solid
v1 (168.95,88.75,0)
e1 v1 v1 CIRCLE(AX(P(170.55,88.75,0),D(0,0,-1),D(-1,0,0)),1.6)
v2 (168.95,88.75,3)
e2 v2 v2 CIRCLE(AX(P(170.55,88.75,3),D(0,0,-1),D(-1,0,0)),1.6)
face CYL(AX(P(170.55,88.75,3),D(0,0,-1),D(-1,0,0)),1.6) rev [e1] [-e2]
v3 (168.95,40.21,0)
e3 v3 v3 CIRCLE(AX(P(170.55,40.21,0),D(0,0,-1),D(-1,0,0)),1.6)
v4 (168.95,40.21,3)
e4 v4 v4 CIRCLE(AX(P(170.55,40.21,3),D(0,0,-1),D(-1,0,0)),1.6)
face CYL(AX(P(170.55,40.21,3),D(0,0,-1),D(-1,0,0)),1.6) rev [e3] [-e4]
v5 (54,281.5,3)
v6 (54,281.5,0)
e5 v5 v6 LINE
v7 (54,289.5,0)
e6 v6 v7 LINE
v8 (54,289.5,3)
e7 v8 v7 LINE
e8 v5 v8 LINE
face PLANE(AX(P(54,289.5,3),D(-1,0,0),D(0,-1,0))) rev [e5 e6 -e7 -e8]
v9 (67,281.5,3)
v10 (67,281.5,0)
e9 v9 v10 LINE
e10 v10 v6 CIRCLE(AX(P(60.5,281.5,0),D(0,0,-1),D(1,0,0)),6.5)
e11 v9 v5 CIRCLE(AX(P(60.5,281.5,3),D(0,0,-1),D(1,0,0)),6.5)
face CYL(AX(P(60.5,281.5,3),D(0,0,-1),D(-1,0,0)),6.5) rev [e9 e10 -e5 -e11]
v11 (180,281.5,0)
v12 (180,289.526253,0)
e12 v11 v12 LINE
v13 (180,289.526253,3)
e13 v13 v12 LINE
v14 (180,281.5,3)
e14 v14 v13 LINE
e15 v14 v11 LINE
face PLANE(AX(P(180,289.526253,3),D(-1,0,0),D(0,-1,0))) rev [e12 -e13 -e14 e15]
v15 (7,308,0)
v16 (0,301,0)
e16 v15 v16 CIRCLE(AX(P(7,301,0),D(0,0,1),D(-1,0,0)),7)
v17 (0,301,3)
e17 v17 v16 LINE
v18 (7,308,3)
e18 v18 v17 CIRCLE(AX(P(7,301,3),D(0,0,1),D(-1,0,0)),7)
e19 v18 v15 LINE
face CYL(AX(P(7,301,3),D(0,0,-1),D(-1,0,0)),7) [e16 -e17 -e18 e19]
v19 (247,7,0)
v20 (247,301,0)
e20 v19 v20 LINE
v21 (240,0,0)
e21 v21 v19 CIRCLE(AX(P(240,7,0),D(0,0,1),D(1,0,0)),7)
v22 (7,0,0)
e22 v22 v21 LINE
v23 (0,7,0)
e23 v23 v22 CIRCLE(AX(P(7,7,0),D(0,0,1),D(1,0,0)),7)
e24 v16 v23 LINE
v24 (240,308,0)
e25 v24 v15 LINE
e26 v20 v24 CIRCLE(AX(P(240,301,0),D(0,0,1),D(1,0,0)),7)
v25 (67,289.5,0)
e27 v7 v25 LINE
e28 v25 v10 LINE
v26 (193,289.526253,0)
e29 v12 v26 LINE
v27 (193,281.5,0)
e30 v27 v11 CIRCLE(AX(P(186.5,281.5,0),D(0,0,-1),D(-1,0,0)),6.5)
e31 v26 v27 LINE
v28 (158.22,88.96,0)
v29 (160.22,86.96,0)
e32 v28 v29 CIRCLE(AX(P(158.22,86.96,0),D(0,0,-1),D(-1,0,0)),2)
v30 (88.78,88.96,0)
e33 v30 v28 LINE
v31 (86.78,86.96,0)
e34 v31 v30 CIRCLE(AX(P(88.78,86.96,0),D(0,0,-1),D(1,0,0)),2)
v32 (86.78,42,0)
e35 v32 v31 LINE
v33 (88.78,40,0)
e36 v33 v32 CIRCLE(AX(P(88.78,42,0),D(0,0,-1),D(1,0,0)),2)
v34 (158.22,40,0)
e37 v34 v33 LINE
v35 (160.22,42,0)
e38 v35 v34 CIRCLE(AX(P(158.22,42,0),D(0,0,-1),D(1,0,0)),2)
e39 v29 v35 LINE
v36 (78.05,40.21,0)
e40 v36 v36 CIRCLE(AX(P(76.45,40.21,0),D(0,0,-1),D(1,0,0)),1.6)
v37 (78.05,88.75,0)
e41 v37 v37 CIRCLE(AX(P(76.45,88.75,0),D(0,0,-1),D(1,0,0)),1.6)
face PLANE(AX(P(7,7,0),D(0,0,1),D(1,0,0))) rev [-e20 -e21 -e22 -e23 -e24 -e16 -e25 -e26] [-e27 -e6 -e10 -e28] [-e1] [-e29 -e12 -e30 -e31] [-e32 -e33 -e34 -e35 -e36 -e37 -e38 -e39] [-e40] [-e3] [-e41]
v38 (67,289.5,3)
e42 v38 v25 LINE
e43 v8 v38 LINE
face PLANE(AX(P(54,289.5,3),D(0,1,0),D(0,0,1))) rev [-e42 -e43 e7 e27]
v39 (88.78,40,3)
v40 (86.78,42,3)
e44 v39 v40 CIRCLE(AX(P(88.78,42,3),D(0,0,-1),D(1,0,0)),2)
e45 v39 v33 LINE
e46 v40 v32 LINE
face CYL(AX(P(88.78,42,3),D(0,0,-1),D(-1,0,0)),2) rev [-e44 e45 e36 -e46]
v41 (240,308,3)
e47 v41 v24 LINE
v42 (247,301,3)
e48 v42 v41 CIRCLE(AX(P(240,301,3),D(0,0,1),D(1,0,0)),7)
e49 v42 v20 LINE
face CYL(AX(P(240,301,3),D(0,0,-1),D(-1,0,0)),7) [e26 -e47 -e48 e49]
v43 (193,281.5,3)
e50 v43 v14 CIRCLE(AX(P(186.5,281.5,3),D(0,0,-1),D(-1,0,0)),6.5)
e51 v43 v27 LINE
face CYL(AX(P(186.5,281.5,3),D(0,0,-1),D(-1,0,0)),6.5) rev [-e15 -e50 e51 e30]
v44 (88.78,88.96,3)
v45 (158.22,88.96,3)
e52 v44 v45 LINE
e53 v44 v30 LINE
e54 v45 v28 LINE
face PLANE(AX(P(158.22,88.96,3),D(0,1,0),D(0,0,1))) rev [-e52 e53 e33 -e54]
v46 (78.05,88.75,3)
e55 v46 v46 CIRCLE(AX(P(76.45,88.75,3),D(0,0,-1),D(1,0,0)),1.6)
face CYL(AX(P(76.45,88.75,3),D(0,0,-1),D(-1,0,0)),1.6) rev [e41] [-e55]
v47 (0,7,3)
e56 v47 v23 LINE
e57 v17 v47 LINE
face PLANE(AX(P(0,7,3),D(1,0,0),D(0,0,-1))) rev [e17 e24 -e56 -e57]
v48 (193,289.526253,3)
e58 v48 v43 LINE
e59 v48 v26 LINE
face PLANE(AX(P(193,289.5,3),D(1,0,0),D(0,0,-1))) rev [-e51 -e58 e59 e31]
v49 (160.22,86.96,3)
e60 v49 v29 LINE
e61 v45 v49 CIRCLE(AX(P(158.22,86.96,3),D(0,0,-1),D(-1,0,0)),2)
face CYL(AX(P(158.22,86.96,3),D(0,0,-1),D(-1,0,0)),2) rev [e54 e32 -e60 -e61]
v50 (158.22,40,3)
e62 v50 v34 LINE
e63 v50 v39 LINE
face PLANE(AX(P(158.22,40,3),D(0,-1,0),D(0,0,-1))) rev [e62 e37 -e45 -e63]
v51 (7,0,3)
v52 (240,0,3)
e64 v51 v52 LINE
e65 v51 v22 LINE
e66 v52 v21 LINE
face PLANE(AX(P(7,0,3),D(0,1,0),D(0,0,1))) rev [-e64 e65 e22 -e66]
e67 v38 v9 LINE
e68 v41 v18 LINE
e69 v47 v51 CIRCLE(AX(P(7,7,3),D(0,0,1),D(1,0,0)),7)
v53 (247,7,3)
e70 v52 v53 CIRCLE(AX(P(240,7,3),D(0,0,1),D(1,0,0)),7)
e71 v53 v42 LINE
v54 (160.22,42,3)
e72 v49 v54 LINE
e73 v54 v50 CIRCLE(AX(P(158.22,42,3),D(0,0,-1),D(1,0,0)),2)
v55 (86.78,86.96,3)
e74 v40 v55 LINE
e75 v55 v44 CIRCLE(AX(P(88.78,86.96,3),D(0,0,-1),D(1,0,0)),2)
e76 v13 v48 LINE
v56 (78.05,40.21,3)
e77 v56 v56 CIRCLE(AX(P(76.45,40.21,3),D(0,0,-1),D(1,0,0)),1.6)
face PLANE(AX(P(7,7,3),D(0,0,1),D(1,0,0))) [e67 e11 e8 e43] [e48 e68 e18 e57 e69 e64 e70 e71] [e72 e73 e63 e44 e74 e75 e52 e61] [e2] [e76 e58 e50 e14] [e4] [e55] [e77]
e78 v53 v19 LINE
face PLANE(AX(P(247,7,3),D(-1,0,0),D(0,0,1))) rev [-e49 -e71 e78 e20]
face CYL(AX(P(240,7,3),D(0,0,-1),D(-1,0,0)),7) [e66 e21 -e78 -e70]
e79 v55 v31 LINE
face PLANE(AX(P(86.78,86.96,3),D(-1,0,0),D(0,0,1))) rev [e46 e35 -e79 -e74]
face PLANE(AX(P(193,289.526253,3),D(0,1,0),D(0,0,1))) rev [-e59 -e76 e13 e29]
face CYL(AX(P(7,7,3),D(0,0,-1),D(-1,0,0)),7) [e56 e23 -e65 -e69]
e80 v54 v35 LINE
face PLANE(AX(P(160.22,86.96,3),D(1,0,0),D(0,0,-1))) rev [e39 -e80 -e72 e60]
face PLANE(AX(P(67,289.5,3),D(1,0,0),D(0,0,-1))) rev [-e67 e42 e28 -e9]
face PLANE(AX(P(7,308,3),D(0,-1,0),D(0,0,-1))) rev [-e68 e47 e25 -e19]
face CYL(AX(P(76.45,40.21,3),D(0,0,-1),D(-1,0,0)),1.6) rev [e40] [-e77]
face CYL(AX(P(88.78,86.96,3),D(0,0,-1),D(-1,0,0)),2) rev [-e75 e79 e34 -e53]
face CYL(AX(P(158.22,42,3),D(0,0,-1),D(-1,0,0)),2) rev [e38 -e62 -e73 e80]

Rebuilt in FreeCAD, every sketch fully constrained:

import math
import FreeCAD as App
import Part
import Sketcher

V = App.Vector

doc = App.newDocument("Part")
params = doc.addObject("Spreadsheet::Sheet", "Params")
for row, (alias, value) in enumerate([
    ("sketch1_radius", "7 mm"),
    ("sketch1_width", "233 mm"),
    ("sketch1_height", "294 mm"),
    ("pad1_length", "3 mm"),
    ("sketch2_radius", "6.5 mm"),
    ("sketch2_height", "8 mm"),
    ("sketch3_radius", "2 mm"),
    ("sketch3_diameter", "3.2 mm"),
    ("sketch3_width", "69.44 mm"),
    ("sketch3_height", "44.96 mm"),
], start=1):
    params.set(f"A{row}", alias)
    params.set(f"B{row}", "=" + value)
    params.setAlias(f"B{row}", alias)

body = doc.addObject("PartDesign::Body", "Body")

sketch1 = doc.addObject("Sketcher::SketchObject", "Sketch")
body.addObject(sketch1)
sketch1.AttachmentSupport = (doc.XY_Plane, [""])
sketch1.MapMode = "FlatFace"
sketch1.addGeometry(Part.LineSegment(V(7, 0, 0), V(240, 0, 0)), False)
sketch1.addGeometry(Part.ArcOfCircle(Part.Circle(V(240, 7, 0), V(0, 0, 1), 7), math.radians(-90), math.radians(0)), False)
sketch1.addGeometry(Part.LineSegment(V(247, 7, 0), V(247, 301, 0)), False)
sketch1.addGeometry(Part.ArcOfCircle(Part.Circle(V(240, 301, 0), V(0, 0, 1), 7), math.radians(0), math.radians(90)), False)
sketch1.addGeometry(Part.LineSegment(V(240, 308, 0), V(7, 308, 0)), False)
sketch1.addGeometry(Part.ArcOfCircle(Part.Circle(V(7, 301, 0), V(0, 0, 1), 7), math.radians(90), math.radians(180)), False)
sketch1.addGeometry(Part.LineSegment(V(0, 301, 0), V(0, 7, 0)), False)
sketch1.addGeometry(Part.ArcOfCircle(Part.Circle(V(7, 7, 0), V(0, 0, 1), 7), math.radians(-180), math.radians(-90)), False)
sketch1.addConstraint(Sketcher.Constraint("Tangent", 0, 2, 1, 1))
sketch1.addConstraint(Sketcher.Constraint("Tangent", 1, 2, 2, 1))
sketch1.addConstraint(Sketcher.Constraint("Tangent", 2, 2, 3, 1))
sketch1.addConstraint(Sketcher.Constraint("Tangent", 3, 2, 4, 1))
sketch1.addConstraint(Sketcher.Constraint("Tangent", 4, 2, 5, 1))
sketch1.addConstraint(Sketcher.Constraint("Tangent", 5, 2, 6, 1))
sketch1.addConstraint(Sketcher.Constraint("Tangent", 6, 2, 7, 1))
sketch1.addConstraint(Sketcher.Constraint("Tangent", 7, 2, 0, 1))
sketch1.addConstraint(Sketcher.Constraint("Horizontal", 0))
sketch1.addConstraint(Sketcher.Constraint("Vertical", 2))
sketch1.addConstraint(Sketcher.Constraint("Horizontal", 4))
sketch1.addConstraint(Sketcher.Constraint("Vertical", 6))
sketch1.addConstraint(Sketcher.Constraint("Equal", 1, 3))
sketch1.addConstraint(Sketcher.Constraint("Equal", 3, 5))
sketch1.addConstraint(Sketcher.Constraint("Equal", 5, 7))
sketch1.addConstraint(Sketcher.Constraint("PointOnObject", 0, 2, -1))
sketch1.addConstraint(Sketcher.Constraint("PointOnObject", 5, 2, -2))
sketch1.addConstraint(Sketcher.Constraint("Radius", 1, 7.0))
sketch1.addConstraint(Sketcher.Constraint("DistanceX", 0, 1, 0, 2, 233.0))
sketch1.addConstraint(Sketcher.Constraint("DistanceY", 2, 1, 2, 2, 294.0))
sketch1.setExpression("Constraints[17]", "Params.sketch1_radius")
sketch1.setExpression("Constraints[18]", "Params.sketch1_width")
sketch1.setExpression("Constraints[19]", "Params.sketch1_height")
pad1 = doc.addObject("PartDesign::Pad", "Pad")
body.addObject(pad1)
pad1.Profile = sketch1
pad1.setExpression("Length", "Params.pad1_length")

sketch2 = doc.addObject("Sketcher::SketchObject", "Sketch001")
body.addObject(sketch2)
sketch2.AttachmentSupport = (doc.XY_Plane, [""])
sketch2.MapMode = "FlatFace"
sketch2.addGeometry(Part.LineSegment(V(54, 290, 0), V(67, 290, 0)), False)
sketch2.addGeometry(Part.LineSegment(V(67, 290, 0), V(67, 282, 0)), False)
sketch2.addGeometry(Part.ArcOfCircle(Part.Circle(V(60, 282, 0), V(0, 0, 1), 6), math.radians(180), math.radians(360)), False)
sketch2.addGeometry(Part.LineSegment(V(54, 282, 0), V(54, 290, 0)), False)
sketch2.addGeometry(Part.ArcOfCircle(Part.Circle(V(186, 282, 0), V(0, 0, 1), 6), math.radians(180), math.radians(360)), False)
sketch2.addGeometry(Part.LineSegment(V(180, 282, 0), V(180, 290, 0)), False)
sketch2.addGeometry(Part.LineSegment(V(180, 290, 0), V(193, 290, 0)), False)
sketch2.addGeometry(Part.LineSegment(V(193, 290, 0), V(193, 282, 0)), False)
sketch2.addConstraint(Sketcher.Constraint("Coincident", 0, 2, 1, 1))
sketch2.addConstraint(Sketcher.Constraint("Tangent", 1, 2, 2, 2))
sketch2.addConstraint(Sketcher.Constraint("Tangent", 2, 1, 3, 1))
sketch2.addConstraint(Sketcher.Constraint("Coincident", 3, 2, 0, 1))
sketch2.addConstraint(Sketcher.Constraint("Tangent", 4, 1, 5, 1))
sketch2.addConstraint(Sketcher.Constraint("Coincident", 5, 2, 6, 1))
sketch2.addConstraint(Sketcher.Constraint("Coincident", 6, 2, 7, 1))
sketch2.addConstraint(Sketcher.Constraint("Tangent", 7, 2, 4, 2))
sketch2.addConstraint(Sketcher.Constraint("Horizontal", 0))
sketch2.addConstraint(Sketcher.Constraint("Vertical", 1))
sketch2.addConstraint(Sketcher.Constraint("Vertical", 3))
sketch2.addConstraint(Sketcher.Constraint("Vertical", 5))
sketch2.addConstraint(Sketcher.Constraint("Horizontal", 6))
sketch2.addConstraint(Sketcher.Constraint("Vertical", 7))
sketch2.addConstraint(Sketcher.Constraint("Equal", 2, 4))
sketch2.addConstraint(Sketcher.Constraint("Horizontal", 2, 3, 4, 3))
sketch2.addConstraint(Sketcher.Constraint("Radius", 2, 6.5))
sketch2.addConstraint(Sketcher.Constraint("DistanceY", 1, 2, 1, 1, 8.0))
sketch2.addConstraint(Sketcher.Constraint("DistanceX", -1, 1, 0, 2, 67.0))
sketch2.addConstraint(Sketcher.Constraint("DistanceX", -1, 1, 4, 1, 180.0))
sketch2.addConstraint(Sketcher.Constraint("DistanceY", -1, 1, 2, 3, 281.5))
sketch2.addConstraint(Sketcher.Constraint("DistanceY", 5, 1, 5, 2, 8.026253))
sketch2.setExpression("Constraints[16]", "Params.sketch2_radius")
sketch2.setExpression("Constraints[17]", "Params.sketch2_height")
pocket1 = doc.addObject("PartDesign::Pocket", "Pocket")
body.addObject(pocket1)
pocket1.Profile = sketch2
pocket1.Type = "ThroughAll"
pocket1.Reversed = True

sketch3 = doc.addObject("Sketcher::SketchObject", "Sketch002")
body.addObject(sketch3)
sketch3.AttachmentSupport = (doc.XY_Plane, [""])
sketch3.MapMode = "FlatFace"
sketch3.addGeometry(Part.Circle(V(170.6, 88.8, 0), V(0, 0, 1), 1.6), False)
sketch3.addGeometry(Part.Circle(V(76.5, 40.2, 0), V(0, 0, 1), 1.6), False)
sketch3.addGeometry(Part.Circle(V(170.6, 40.2, 0), V(0, 0, 1), 1.6), False)
sketch3.addGeometry(Part.Circle(V(76.5, 88.8, 0), V(0, 0, 1), 1.6), False)
sketch3.addGeometry(Part.LineSegment(V(88.8, 89, 0), V(158.2, 89, 0)), False)
sketch3.addGeometry(Part.ArcOfCircle(Part.Circle(V(158.2, 87, 0), V(0, 0, 1), 2), math.radians(0), math.radians(90)), False)
sketch3.addGeometry(Part.LineSegment(V(160.2, 87, 0), V(160.2, 42, 0)), False)
sketch3.addGeometry(Part.ArcOfCircle(Part.Circle(V(158.2, 42, 0), V(0, 0, 1), 2), math.radians(-90), math.radians(0)), False)
sketch3.addGeometry(Part.LineSegment(V(158.2, 40, 0), V(88.8, 40, 0)), False)
sketch3.addGeometry(Part.ArcOfCircle(Part.Circle(V(88.8, 42, 0), V(0, 0, 1), 2), math.radians(-180), math.radians(-90)), False)
sketch3.addGeometry(Part.LineSegment(V(86.8, 42, 0), V(86.8, 87, 0)), False)
sketch3.addGeometry(Part.ArcOfCircle(Part.Circle(V(88.8, 87, 0), V(0, 0, 1), 2), math.radians(90), math.radians(180)), False)
sketch3.addConstraint(Sketcher.Constraint("Tangent", 4, 2, 5, 2))
sketch3.addConstraint(Sketcher.Constraint("Tangent", 5, 1, 6, 1))
sketch3.addConstraint(Sketcher.Constraint("Tangent", 6, 2, 7, 2))
sketch3.addConstraint(Sketcher.Constraint("Tangent", 7, 1, 8, 1))
sketch3.addConstraint(Sketcher.Constraint("Tangent", 8, 2, 9, 2))
sketch3.addConstraint(Sketcher.Constraint("Tangent", 9, 1, 10, 1))
sketch3.addConstraint(Sketcher.Constraint("Tangent", 10, 2, 11, 2))
sketch3.addConstraint(Sketcher.Constraint("Tangent", 11, 1, 4, 1))
sketch3.addConstraint(Sketcher.Constraint("Horizontal", 4))
sketch3.addConstraint(Sketcher.Constraint("Vertical", 6))
sketch3.addConstraint(Sketcher.Constraint("Horizontal", 8))
sketch3.addConstraint(Sketcher.Constraint("Vertical", 10))
sketch3.addConstraint(Sketcher.Constraint("Equal", 0, 1))
sketch3.addConstraint(Sketcher.Constraint("Equal", 1, 2))
sketch3.addConstraint(Sketcher.Constraint("Equal", 2, 3))
sketch3.addConstraint(Sketcher.Constraint("Equal", 5, 7))
sketch3.addConstraint(Sketcher.Constraint("Equal", 7, 9))
sketch3.addConstraint(Sketcher.Constraint("Equal", 9, 11))
sketch3.addConstraint(Sketcher.Constraint("Horizontal", 1, 3, 2, 3))
sketch3.addConstraint(Sketcher.Constraint("Horizontal", 0, 3, 3, 3))
sketch3.addConstraint(Sketcher.Constraint("Vertical", 0, 3, 2, 3))
sketch3.addConstraint(Sketcher.Constraint("Vertical", 1, 3, 3, 3))
sketch3.addConstraint(Sketcher.Constraint("Radius", 5, 2.0))
sketch3.addConstraint(Sketcher.Constraint("Diameter", 0, 3.2))
sketch3.addConstraint(Sketcher.Constraint("DistanceY", -1, 1, 7, 3, 42.0))
sketch3.addConstraint(Sketcher.Constraint("DistanceX", 4, 1, 4, 2, 69.44))
sketch3.addConstraint(Sketcher.Constraint("DistanceY", 6, 2, 6, 1, 44.96))
sketch3.addConstraint(Sketcher.Constraint("DistanceX", 1, 3, 0, 3, 94.1))
sketch3.addConstraint(Sketcher.Constraint("DistanceX", -1, 1, 0, 3, 170.55))
sketch3.addConstraint(Sketcher.Constraint("DistanceY", -1, 1, 0, 3, 88.75))
sketch3.addConstraint(Sketcher.Constraint("DistanceY", -1, 1, 1, 3, 40.21))
sketch3.addConstraint(Sketcher.Constraint("DistanceX", -1, 1, 5, 3, 158.22))
sketch3.setExpression("Constraints[22]", "Params.sketch3_radius")
sketch3.setExpression("Constraints[23]", "Params.sketch3_diameter")
sketch3.setExpression("Constraints[25]", "Params.sketch3_width")
sketch3.setExpression("Constraints[26]", "Params.sketch3_height")
pocket2 = doc.addObject("PartDesign::Pocket", "Pocket001")
body.addObject(pocket2)
pocket2.Profile = sketch3
pocket2.Type = "ThroughAll"
pocket2.Reversed = True

doc.recompute()
